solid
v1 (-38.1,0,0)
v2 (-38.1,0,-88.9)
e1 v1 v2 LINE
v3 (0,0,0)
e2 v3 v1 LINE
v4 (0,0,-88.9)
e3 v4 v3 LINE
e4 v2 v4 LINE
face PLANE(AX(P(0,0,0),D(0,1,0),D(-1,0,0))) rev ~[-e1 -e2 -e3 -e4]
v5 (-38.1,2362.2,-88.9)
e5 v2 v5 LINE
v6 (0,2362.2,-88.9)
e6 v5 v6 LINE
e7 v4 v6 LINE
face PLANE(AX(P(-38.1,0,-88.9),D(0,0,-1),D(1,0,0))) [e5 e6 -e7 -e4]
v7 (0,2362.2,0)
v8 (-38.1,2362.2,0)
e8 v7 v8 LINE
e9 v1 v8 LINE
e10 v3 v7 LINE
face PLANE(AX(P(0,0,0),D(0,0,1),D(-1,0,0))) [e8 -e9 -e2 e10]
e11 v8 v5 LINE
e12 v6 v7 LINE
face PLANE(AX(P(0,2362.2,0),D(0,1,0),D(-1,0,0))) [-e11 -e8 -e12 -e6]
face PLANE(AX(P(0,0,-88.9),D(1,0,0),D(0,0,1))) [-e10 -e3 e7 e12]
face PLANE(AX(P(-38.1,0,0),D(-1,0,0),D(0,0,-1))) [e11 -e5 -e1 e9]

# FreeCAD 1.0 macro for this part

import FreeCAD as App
import Part
import Sketcher
from FreeCAD import Vector
Q = App.Units.Quantity


def add_polygon(sketch, points):
    """Adds a closed chain of lines whose ends are joined by coincident constraints."""
    first, n = sketch.GeometryCount, len(points)
    for a, b in zip(points, points[1:] + points[:1]):
        sketch.addGeometry(Part.LineSegment(App.Vector(*a, 0), App.Vector(*b, 0)), False)
    for i in range(n):
        sketch.addConstraint(Sketcher.Constraint("Coincident", first + i, 2, first + (i + 1) % n, 1))

doc = App.newDocument("Part")
body = doc.addObject("PartDesign::Body", "Body")

# Sketch on XZ plane
sketch1 = doc.addObject("Sketcher::SketchObject", "Sketch")
body.addObject(sketch1)
sketch1.AttachmentSupport = (doc.XZ_Plane, [""])
sketch1.MapMode = "FlatFace"
add_polygon(sketch1, [(-38, 0), (0, 0), (0, -89), (-38, -89)])  # lines 0-3
sketch1.addConstraint(Sketcher.Constraint("Horizontal", 0))
sketch1.addConstraint(Sketcher.Constraint("Vertical", 1))
sketch1.addConstraint(Sketcher.Constraint("Horizontal", 2))
sketch1.addConstraint(Sketcher.Constraint("Vertical", 3))
sketch1.addConstraint(Sketcher.Constraint("Coincident", 0, 2, -1, 1))
sketch1.addConstraint(Sketcher.Constraint("DistanceX", 0, 1, 0, 2, Q("1.5 in")))
sketch1.addConstraint(Sketcher.Constraint("DistanceY", 1, 2, 1, 1, Q("3.5 in")))
pad1 = doc.addObject("PartDesign::Pad", "Pad")
body.addObject(pad1)
pad1.Profile = sketch1
pad1.Length = Q("93 in")
pad1.Reversed = True

doc.recompute()
